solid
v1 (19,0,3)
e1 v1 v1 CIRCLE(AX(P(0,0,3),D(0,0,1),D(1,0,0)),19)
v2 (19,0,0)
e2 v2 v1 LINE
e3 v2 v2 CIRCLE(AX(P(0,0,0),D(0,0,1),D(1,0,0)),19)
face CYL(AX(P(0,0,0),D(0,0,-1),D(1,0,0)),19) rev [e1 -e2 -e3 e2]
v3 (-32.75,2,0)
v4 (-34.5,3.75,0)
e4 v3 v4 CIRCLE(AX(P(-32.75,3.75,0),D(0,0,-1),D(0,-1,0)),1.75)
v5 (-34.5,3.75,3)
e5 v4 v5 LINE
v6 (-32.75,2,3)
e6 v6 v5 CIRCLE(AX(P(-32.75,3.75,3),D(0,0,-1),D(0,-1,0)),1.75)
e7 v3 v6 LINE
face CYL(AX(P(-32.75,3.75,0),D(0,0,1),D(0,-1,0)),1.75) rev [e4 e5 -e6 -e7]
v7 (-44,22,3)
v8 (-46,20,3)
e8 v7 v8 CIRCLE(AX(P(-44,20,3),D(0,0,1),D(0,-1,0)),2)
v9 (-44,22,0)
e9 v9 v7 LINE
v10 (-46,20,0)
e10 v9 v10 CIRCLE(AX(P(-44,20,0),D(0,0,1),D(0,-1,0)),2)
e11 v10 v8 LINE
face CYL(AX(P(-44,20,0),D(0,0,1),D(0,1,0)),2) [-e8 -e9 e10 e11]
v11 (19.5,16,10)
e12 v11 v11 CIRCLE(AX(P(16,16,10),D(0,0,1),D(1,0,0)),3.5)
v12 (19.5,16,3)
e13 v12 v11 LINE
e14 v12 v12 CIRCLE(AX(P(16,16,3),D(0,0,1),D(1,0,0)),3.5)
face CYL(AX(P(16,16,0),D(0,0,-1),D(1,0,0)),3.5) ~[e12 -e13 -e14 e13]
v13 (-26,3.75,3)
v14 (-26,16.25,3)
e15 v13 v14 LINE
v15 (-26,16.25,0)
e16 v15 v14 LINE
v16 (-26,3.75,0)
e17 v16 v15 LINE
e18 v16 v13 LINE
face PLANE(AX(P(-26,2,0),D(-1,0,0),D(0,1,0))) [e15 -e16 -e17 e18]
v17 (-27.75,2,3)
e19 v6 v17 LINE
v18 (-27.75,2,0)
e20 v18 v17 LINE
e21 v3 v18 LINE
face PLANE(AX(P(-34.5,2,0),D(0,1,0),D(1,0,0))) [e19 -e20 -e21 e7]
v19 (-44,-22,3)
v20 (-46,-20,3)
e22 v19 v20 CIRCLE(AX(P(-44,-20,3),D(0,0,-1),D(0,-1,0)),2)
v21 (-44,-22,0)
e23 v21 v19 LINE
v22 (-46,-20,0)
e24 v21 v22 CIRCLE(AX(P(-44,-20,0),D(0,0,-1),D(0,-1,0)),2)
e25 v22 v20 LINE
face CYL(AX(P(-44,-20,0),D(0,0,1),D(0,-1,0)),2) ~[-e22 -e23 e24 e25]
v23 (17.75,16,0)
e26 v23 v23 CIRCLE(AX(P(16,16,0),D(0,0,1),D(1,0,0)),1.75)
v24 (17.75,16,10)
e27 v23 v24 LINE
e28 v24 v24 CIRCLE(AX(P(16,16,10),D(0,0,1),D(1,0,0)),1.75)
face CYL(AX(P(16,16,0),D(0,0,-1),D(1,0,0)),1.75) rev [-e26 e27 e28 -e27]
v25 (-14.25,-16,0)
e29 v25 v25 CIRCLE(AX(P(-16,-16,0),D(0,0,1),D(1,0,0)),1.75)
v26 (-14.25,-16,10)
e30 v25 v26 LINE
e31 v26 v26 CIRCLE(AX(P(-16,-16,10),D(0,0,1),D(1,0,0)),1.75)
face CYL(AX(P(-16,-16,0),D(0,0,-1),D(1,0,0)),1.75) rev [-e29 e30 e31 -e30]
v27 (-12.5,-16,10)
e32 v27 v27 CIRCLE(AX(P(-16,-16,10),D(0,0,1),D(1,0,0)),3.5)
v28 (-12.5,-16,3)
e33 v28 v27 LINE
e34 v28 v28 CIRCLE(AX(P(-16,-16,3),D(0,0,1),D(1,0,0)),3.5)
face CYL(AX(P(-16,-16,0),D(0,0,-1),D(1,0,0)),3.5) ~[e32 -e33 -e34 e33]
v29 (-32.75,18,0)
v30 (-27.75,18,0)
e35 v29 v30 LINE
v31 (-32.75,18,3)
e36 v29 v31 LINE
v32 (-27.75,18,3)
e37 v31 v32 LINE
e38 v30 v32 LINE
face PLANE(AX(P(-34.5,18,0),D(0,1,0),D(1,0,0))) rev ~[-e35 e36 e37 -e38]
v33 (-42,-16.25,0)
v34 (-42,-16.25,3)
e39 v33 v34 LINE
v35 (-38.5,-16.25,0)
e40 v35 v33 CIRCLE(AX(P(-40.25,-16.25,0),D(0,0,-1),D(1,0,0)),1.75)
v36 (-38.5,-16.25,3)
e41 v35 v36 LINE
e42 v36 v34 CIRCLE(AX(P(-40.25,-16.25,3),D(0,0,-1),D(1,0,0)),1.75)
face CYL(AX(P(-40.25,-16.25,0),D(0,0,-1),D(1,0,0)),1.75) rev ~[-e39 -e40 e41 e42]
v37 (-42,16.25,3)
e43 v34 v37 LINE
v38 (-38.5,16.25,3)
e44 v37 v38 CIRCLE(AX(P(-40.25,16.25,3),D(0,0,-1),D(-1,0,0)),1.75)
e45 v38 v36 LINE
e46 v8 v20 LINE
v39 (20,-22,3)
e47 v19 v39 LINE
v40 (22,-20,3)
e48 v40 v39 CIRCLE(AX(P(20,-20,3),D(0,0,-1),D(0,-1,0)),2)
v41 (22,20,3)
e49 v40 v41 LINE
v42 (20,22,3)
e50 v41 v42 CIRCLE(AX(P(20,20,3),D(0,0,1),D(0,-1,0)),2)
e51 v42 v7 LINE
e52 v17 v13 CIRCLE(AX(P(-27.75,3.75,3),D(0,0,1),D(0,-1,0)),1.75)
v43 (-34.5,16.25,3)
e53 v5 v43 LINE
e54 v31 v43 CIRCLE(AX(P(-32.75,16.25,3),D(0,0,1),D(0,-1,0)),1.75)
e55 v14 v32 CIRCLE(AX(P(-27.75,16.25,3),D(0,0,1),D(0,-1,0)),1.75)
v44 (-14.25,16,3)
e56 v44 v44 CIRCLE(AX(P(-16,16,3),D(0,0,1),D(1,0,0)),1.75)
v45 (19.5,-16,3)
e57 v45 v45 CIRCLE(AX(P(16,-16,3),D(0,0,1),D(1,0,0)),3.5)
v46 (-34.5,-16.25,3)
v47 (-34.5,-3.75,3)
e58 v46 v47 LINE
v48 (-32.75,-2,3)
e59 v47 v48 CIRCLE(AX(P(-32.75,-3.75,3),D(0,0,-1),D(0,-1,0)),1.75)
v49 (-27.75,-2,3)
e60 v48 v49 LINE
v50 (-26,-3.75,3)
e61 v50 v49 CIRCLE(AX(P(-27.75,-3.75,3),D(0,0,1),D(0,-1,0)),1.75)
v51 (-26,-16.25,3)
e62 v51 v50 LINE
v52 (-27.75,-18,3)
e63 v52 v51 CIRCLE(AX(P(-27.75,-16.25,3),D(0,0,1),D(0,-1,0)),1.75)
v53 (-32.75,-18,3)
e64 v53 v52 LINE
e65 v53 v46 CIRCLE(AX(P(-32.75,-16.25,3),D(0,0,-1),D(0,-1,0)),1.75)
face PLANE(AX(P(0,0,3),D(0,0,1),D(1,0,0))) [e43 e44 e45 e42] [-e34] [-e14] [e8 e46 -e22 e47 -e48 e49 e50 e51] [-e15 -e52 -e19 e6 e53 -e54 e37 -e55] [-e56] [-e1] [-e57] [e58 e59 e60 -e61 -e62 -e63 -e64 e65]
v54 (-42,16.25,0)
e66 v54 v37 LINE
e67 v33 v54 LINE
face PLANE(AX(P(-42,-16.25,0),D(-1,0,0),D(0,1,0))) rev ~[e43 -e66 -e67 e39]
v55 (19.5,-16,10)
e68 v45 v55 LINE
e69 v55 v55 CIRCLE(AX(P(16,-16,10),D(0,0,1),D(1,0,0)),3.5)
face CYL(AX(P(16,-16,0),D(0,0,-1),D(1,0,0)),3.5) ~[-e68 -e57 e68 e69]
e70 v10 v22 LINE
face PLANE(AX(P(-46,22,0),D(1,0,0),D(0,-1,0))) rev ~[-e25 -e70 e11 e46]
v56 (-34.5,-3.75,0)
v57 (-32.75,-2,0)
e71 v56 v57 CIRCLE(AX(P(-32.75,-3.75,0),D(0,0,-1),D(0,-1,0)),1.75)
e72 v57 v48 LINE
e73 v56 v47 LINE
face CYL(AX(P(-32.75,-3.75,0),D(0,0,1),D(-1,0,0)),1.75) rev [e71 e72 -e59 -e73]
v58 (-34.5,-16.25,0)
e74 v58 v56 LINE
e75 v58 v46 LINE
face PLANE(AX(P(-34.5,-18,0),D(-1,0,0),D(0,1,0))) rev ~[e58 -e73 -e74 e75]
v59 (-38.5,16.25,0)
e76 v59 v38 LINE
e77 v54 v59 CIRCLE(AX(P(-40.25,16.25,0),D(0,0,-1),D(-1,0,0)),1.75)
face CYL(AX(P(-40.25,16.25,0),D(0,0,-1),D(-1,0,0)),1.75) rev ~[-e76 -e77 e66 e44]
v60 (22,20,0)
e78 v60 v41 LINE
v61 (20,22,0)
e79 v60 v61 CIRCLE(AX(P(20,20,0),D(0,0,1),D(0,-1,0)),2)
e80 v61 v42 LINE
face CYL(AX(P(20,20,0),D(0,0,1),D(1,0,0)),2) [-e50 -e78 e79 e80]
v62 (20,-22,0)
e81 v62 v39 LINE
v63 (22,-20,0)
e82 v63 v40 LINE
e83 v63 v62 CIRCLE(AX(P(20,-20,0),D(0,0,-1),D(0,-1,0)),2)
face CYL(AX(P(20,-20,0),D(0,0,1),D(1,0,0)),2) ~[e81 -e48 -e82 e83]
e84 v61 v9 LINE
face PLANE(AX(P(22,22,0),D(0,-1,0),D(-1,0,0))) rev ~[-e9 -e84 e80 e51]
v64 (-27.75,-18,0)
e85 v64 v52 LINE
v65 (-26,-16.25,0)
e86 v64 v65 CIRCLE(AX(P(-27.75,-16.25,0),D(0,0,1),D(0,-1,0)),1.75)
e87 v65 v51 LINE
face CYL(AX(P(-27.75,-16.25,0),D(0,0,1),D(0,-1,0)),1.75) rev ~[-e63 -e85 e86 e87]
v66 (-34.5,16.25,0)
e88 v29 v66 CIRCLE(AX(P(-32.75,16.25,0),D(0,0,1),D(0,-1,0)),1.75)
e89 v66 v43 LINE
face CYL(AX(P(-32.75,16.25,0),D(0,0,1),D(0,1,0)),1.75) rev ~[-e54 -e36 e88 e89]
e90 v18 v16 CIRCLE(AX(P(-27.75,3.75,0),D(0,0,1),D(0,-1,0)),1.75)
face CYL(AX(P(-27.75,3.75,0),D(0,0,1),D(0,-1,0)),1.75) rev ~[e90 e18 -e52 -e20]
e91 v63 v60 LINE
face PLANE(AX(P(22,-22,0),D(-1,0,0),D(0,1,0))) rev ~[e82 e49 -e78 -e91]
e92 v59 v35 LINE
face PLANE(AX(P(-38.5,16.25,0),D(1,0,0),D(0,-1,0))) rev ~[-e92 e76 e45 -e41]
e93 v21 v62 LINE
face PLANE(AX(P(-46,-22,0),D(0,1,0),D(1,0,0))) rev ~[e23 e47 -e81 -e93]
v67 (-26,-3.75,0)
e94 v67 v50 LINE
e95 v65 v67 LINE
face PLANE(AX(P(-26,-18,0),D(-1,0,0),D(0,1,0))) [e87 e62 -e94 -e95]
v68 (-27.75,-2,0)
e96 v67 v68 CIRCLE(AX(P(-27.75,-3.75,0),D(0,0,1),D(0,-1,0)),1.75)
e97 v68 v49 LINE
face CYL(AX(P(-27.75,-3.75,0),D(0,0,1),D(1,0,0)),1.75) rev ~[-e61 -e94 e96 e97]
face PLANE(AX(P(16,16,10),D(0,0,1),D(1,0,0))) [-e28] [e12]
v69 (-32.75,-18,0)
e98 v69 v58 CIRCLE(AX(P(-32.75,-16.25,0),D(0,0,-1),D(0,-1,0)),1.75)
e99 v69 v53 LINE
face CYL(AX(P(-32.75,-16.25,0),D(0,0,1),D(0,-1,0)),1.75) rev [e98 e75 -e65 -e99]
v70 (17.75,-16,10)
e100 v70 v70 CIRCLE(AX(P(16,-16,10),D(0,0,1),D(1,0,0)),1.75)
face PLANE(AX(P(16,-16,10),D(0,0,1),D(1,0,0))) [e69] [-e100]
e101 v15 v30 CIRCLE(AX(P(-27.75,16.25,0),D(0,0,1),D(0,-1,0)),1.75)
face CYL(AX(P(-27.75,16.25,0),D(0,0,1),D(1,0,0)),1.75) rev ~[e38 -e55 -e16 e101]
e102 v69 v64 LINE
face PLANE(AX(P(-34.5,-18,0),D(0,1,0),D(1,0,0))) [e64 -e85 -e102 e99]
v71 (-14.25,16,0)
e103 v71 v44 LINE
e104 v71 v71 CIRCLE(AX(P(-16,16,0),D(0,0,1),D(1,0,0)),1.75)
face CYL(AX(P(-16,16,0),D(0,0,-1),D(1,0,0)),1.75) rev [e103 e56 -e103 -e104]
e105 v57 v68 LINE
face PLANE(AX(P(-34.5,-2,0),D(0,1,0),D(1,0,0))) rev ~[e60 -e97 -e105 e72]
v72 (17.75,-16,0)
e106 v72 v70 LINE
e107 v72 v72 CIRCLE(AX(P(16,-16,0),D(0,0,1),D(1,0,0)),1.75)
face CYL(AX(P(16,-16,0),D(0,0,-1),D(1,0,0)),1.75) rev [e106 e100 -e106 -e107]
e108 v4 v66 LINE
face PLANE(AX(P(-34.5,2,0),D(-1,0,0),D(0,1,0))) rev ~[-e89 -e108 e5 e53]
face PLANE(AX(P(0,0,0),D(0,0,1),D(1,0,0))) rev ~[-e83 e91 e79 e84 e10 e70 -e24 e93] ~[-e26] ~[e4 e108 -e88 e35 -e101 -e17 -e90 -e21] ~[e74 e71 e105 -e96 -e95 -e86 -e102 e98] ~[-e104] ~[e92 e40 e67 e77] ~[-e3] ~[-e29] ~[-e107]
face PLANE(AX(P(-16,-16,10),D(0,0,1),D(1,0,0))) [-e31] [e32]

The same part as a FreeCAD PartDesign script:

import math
import FreeCAD as App
import Part
import Sketcher
from FreeCAD import Vector
Q = App.Units.Quantity


def edges_at(feature, points):
    """Names of the edges that pass closest to the given points."""
    edges = feature.Shape.Edges
    near = lambda p: min(range(len(edges)), key=lambda i: edges[i].distToShape(Part.Vertex(*p))[0])
    return sorted({f"Edge{near(p) + 1}" for p in points})

doc = App.newDocument("Part")
body = doc.addObject("PartDesign::Body", "Body")

sketch1 = body.newObject("Sketcher::SketchObject", "Sketch")
sketch1.AttachmentSupport = (doc.getObject("XY_Plane"), [""])
sketch1.MapMode = "FlatFace"
sketch1.addGeometry(Part.LineSegment(Vector(22, -22, 0), Vector(22, 22, 0)), False)
sketch1.addGeometry(Part.LineSegment(Vector(22, 22, 0), Vector(-46, 22, 0)), False)
sketch1.addGeometry(Part.LineSegment(Vector(-46, 22, 0), Vector(-46, -22, 0)), False)
sketch1.addGeometry(Part.LineSegment(Vector(-46, -22, 0), Vector(22, -22, 0)), False)
sketch1.addGeometry(Part.LineSegment(Vector(-26, -18, 0), Vector(-34.5, -18, 0)), False)
sketch1.addGeometry(Part.LineSegment(Vector(-34.5, -18, 0), Vector(-34.5, -2, 0)), False)
sketch1.addGeometry(Part.LineSegment(Vector(-34.5, -2, 0), Vector(-26, -2, 0)), False)
sketch1.addGeometry(Part.LineSegment(Vector(-26, -2, 0), Vector(-26, -18, 0)), False)
sketch1.addGeometry(Part.Circle(Vector(-16, -16, 0), Vector(0, 0, 1), 3.5), False)
sketch1.addGeometry(Part.Circle(Vector(16, -16, 0), Vector(0, 0, 1), 3.5), False)
sketch1.addGeometry(Part.LineSegment(Vector(-42, -16.25, 0), Vector(-42, 16.25, 0)), False)
sketch1.addGeometry(Part.ArcOfCircle(Part.Circle(Vector(-40.25, 16.25, 0), Vector(0, 0, 1), 1.75), math.radians(0), math.radians(180)), False)
sketch1.addGeometry(Part.LineSegment(Vector(-38.5, 16.25, 0), Vector(-38.5, -16.25, 0)), False)
sketch1.addGeometry(Part.ArcOfCircle(Part.Circle(Vector(-40.25, -16.25, 0), Vector(0, 0, 1), 1.75), math.radians(180), math.radians(360)), False)
sketch1.addGeometry(Part.LineSegment(Vector(-26, 2, 0), Vector(-34.5, 2, 0)), False)
sketch1.addGeometry(Part.LineSegment(Vector(-34.5, 2, 0), Vector(-34.5, 18, 0)), False)
sketch1.addGeometry(Part.LineSegment(Vector(-34.5, 18, 0), Vector(-26, 18, 0)), False)
sketch1.addGeometry(Part.LineSegment(Vector(-26, 18, 0), Vector(-26, 2, 0)), False)
sketch1.addGeometry(Part.Circle(Vector(-16, 16, 0), Vector(0, 0, 1), 1.75), False)
sketch1.addGeometry(Part.Circle(Vector(0, 0, 0), Vector(0, 0, 1), 19), False)
sketch1.addGeometry(Part.Circle(Vector(16, 16, 0), Vector(0, 0, 1), 3.5), False)
sketch1.addConstraint(Sketcher.Constraint("Coincident", 0, 2, 1, 1))
sketch1.addConstraint(Sketcher.Constraint("Coincident", 1, 2, 2, 1))
sketch1.addConstraint(Sketcher.Constraint("Coincident", 2, 2, 3, 1))
sketch1.addConstraint(Sketcher.Constraint("Coincident", 3, 2, 0, 1))
sketch1.addConstraint(Sketcher.Constraint("Coincident", 4, 2, 5, 1))
sketch1.addConstraint(Sketcher.Constraint("Coincident", 5, 2, 6, 1))
sketch1.addConstraint(Sketcher.Constraint("Coincident", 6, 2, 7, 1))
sketch1.addConstraint(Sketcher.Constraint("Coincident", 7, 2, 4, 1))
sketch1.addConstraint(Sketcher.Constraint("Tangent", 10, 2, 11, 2))
sketch1.addConstraint(Sketcher.Constraint("Tangent", 11, 1, 12, 1))
sketch1.addConstraint(Sketcher.Constraint("Tangent", 12, 2, 13, 2))
sketch1.addConstraint(Sketcher.Constraint("Tangent", 13, 1, 10, 1))
sketch1.addConstraint(Sketcher.Constraint("Coincident", 14, 2, 15, 1))
sketch1.addConstraint(Sketcher.Constraint("Coincident", 15, 2, 16, 1))
sketch1.addConstraint(Sketcher.Constraint("Coincident", 16, 2, 17, 1))
sketch1.addConstraint(Sketcher.Constraint("Coincident", 17, 2, 14, 1))
sketch1.addConstraint(Sketcher.Constraint("Vertical", 0))
sketch1.addConstraint(Sketcher.Constraint("Horizontal", 1))
sketch1.addConstraint(Sketcher.Constraint("Vertical", 2))
sketch1.addConstraint(Sketcher.Constraint("Horizontal", 3))
sketch1.addConstraint(Sketcher.Constraint("Horizontal", 4))
sketch1.addConstraint(Sketcher.Constraint("Vertical", 5))
sketch1.addConstraint(Sketcher.Constraint("Horizontal", 6))
sketch1.addConstraint(Sketcher.Constraint("Vertical", 7))
sketch1.addConstraint(Sketcher.Constraint("Vertical", 10))
sketch1.addConstraint(Sketcher.Constraint("Vertical", 12))
sketch1.addConstraint(Sketcher.Constraint("Horizontal", 14))
sketch1.addConstraint(Sketcher.Constraint("Vertical", 15))
sketch1.addConstraint(Sketcher.Constraint("Horizontal", 16))
sketch1.addConstraint(Sketcher.Constraint("Vertical", 17))
sketch1.addConstraint(Sketcher.Constraint("Coincident", 19, 3, -1, 1))
sketch1.addConstraint(Sketcher.Constraint("Equal", 8, 9))
sketch1.addConstraint(Sketcher.Constraint("Equal", 13, 18))
sketch1.addConstraint(Sketcher.Constraint("Equal", 9, 20))
sketch1.addConstraint(Sketcher.Constraint("Symmetric", 9, 3, 18, 3, -1, 1))
sketch1.addConstraint(Sketcher.Constraint("Symmetric", 8, 3, 20, 3, -1, 1))
sketch1.addConstraint(Sketcher.Constraint("Symmetric", 8, 3, 9, 3, -2))
sketch1.addConstraint(Sketcher.Constraint("Symmetric", 5, 2, 14, 2, -1))
sketch1.addConstraint(Sketcher.Constraint("Symmetric", 7, 2, 16, 2, -1))
sketch1.addConstraint(Sketcher.Constraint("Diameter", 8, Q("7 mm")))
sketch1.addConstraint(Sketcher.Constraint("Diameter", 19, Q("38 mm")))
sketch1.addConstraint(Sketcher.Constraint("Diameter", 18, Q("3.5 mm")))
sketch1.addConstraint(Sketcher.Constraint("DistanceX", 1, 2, 1, 1, Q("68 mm")))
sketch1.addConstraint(Sketcher.Constraint("DistanceY", 0, 1, 0, 2, Q("44 mm")))
sketch1.addConstraint(Sketcher.Constraint("DistanceY", 5, 1, 5, 2, Q("16 mm")))
sketch1.addConstraint(Sketcher.Constraint("DistanceX", 4, 2, 4, 1, Q("8.5 mm")))
sketch1.addConstraint(Sketcher.Constraint("DistanceY", 10, 1, 10, 2, Q("32.5 mm")))
sketch1.addConstraint(Sketcher.Constraint("DistanceX", 8, 3, -1, 1, Q("16 mm")))
sketch1.addConstraint(Sketcher.Constraint("DistanceY", 8, 3, -1, 1, Q("16 mm")))
sketch1.addConstraint(Sketcher.Constraint("DistanceX", -1, 1, 0, 2, Q("22 mm")))
sketch1.addConstraint(Sketcher.Constraint("DistanceY", -1, 1, 0, 2, Q("22 mm")))
sketch1.addConstraint(Sketcher.Constraint("DistanceY", 4, 2, -1, 1, Q("18 mm")))
sketch1.addConstraint(Sketcher.Constraint("DistanceX", 6, 2, -1, 1, Q("26 mm")))
sketch1.addConstraint(Sketcher.Constraint("DistanceX", 10, 2, -1, 1, Q("42 mm")))
sketch1.addConstraint(Sketcher.Constraint("DistanceY", -1, 1, 11, 3, Q("16.25 mm")))
pad1 = body.newObject("PartDesign::Pad", "Pad")
pad1.Profile = sketch1
pad1.Length = 3

sketch2 = body.newObject("Sketcher::SketchObject", "Sketch001")
sketch2.AttachmentSupport = (doc.getObject("XY_Plane"), [""])
sketch2.MapMode = "FlatFace"
sketch2.addGeometry(Part.Circle(Vector(16, 16, 0), Vector(0, 0, 1), 3.5), False)
sketch2.addGeometry(Part.Circle(Vector(16, 16, 0), Vector(0, 0, 1), 1.75), False)
sketch2.addGeometry(Part.Circle(Vector(16, -16, 0), Vector(0, 0, 1), 3.5), False)
sketch2.addGeometry(Part.Circle(Vector(16, -16, 0), Vector(0, 0, 1), 1.75), False)
sketch2.addGeometry(Part.Circle(Vector(-16, -16, 0), Vector(0, 0, 1), 3.5), False)
sketch2.addGeometry(Part.Circle(Vector(-16, -16, 0), Vector(0, 0, 1), 1.75), False)
sketch2.addConstraint(Sketcher.Constraint("Coincident", 1, 3, 0, 3))
sketch2.addConstraint(Sketcher.Constraint("Coincident", 3, 3, 2, 3))
sketch2.addConstraint(Sketcher.Constraint("Coincident", 5, 3, 4, 3))
sketch2.addConstraint(Sketcher.Constraint("Equal", 0, 2))
sketch2.addConstraint(Sketcher.Constraint("Equal", 1, 3))
sketch2.addConstraint(Sketcher.Constraint("Equal", 2, 4))
sketch2.addConstraint(Sketcher.Constraint("Equal", 3, 5))
sketch2.addConstraint(Sketcher.Constraint("Symmetric", 0, 3, 4, 3, -1, 1))
sketch2.addConstraint(Sketcher.Constraint("Symmetric", 2, 3, 4, 3, -2))
sketch2.addConstraint(Sketcher.Constraint("Diameter", 0, Q("7 mm")))
sketch2.addConstraint(Sketcher.Constraint("Diameter", 1, Q("3.5 mm")))
sketch2.addConstraint(Sketcher.Constraint("DistanceX", -1, 1, 0, 3, Q("16 mm")))
sketch2.addConstraint(Sketcher.Constraint("DistanceY", -1, 1, 0, 3, Q("16 mm")))
pad2 = body.newObject("PartDesign::Pad", "Pad001")
pad2.Profile = sketch2
pad2.Length = 10
doc.recompute()

fillet = body.newObject("PartDesign::Fillet", "Fillet")
fillet.Base = (pad2, edges_at(pad2, [
    (-34.5, 18, 1.5),
    (-26, 18, 1.5),
    (-34.5, 2, 1.5),
    (-26, 2, 1.5),
    (-34.5, -18, 1.5),
    (-26, -18, 1.5),
    (-34.5, -2, 1.5),
    (-26, -2, 1.5),
]))
fillet.Radius = 1.75
doc.recompute()

fillet2 = body.newObject("PartDesign::Fillet", "Fillet001")
fillet2.Base = (fillet, edges_at(fillet, [
    (-46, 22, 1.5),
    (-46, -22, 1.5),
    (22, -22, 1.5),
    (22, 22, 1.5),
]))
fillet2.Radius = 2

doc.recompute()
